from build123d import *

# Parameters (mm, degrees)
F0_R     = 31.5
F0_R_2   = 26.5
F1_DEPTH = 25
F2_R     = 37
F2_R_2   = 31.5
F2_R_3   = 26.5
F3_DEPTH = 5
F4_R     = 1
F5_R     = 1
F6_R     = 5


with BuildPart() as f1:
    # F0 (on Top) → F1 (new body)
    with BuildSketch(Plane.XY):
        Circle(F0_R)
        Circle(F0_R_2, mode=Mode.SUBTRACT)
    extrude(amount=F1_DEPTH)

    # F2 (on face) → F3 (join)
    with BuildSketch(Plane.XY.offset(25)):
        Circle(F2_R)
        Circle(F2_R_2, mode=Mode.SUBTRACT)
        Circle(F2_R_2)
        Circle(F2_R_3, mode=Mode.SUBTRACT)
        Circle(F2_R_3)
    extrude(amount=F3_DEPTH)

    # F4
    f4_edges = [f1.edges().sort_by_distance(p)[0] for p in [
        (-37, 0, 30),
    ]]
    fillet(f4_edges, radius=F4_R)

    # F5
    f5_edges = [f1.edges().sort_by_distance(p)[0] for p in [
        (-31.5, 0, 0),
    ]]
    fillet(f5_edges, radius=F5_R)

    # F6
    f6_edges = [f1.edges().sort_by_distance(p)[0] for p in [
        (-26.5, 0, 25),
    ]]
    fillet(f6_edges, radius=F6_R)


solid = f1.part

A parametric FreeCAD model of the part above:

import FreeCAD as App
import Part
import Sketcher
from FreeCAD import Vector


def edges_at(feature, points):
    """Names of the edges that pass closest to the given points."""
    edges = feature.Shape.Edges
    near = lambda p: min(range(len(edges)), key=lambda i: edges[i].distToShape(Part.Vertex(*p))[0])
    return sorted({f"Edge{near(p) + 1}" for p in points})

doc = App.newDocument("Part")
body = doc.addObject("PartDesign::Body", "Body")

# Sketch on XY plane
sketch1 = doc.addObject("Sketcher::SketchObject", "Sketch")
body.addObject(sketch1)
sketch1.AttachmentSupport = (doc.XY_Plane, [""])
sketch1.MapMode = "FlatFace"
sketch1.addGeometry([
    Part.Circle(Vector(0, 0, 0), Vector(0, 0, 1), 31.5),
    Part.Circle(Vector(0, 0, 0), Vector(0, 0, 1), 26.5),
], False)
sketch1.addConstraint([
    Sketcher.Constraint("Coincident", 0, 3, -1, 1),
    Sketcher.Constraint("Coincident", 1, 3, -1, 1),
    Sketcher.Constraint("Diameter", 0, 63.0),
    Sketcher.Constraint("Diameter", 1, 53.0),
])
pad1 = doc.addObject("PartDesign::Pad", "Pad")
body.addObject(pad1)
pad1.Profile = sketch1
pad1.Length = 25

# Sketch on XY plane
sketch2 = doc.addObject("Sketcher::SketchObject", "Sketch001")
body.addObject(sketch2)
sketch2.AttachmentSupport = (doc.XY_Plane, [""])
sketch2.MapMode = "FlatFace"
sketch2.AttachmentOffset = App.Placement(Vector(0, 0, 25), App.Rotation())
sketch2.addGeometry(Part.Circle(Vector(0, 0, 0), Vector(0, 0, 1), 37), False)
sketch2.addConstraint([
    Sketcher.Constraint("Coincident", 0, 3, -1, 1),
    Sketcher.Constraint("Diameter", 0, 74.0),
])
pad2 = doc.addObject("PartDesign::Pad", "Pad001")
body.addObject(pad2)
pad2.Profile = sketch2
pad2.Length = 5
doc.recompute()

fillet = doc.addObject("PartDesign::Fillet", "Fillet")
body.addObject(fillet)
fillet.Base = (pad2, edges_at(pad2, [(-37, 0, 30)]))
fillet.Radius = 1
doc.recompute()

fillet2 = doc.addObject("PartDesign::Fillet", "Fillet001")
body.addObject(fillet2)
fillet2.Base = (fillet, edges_at(fillet, [(-31.5, 0, 0)]))
fillet2.Radius = 1
doc.recompute()

fillet3 = doc.addObject("PartDesign::Fillet", "Fillet002")
body.addObject(fillet3)
fillet3.Base = (fillet2, edges_at(fillet2, [(-26.5, 0, 25)]))
fillet3.Radius = 5

doc.recompute()
